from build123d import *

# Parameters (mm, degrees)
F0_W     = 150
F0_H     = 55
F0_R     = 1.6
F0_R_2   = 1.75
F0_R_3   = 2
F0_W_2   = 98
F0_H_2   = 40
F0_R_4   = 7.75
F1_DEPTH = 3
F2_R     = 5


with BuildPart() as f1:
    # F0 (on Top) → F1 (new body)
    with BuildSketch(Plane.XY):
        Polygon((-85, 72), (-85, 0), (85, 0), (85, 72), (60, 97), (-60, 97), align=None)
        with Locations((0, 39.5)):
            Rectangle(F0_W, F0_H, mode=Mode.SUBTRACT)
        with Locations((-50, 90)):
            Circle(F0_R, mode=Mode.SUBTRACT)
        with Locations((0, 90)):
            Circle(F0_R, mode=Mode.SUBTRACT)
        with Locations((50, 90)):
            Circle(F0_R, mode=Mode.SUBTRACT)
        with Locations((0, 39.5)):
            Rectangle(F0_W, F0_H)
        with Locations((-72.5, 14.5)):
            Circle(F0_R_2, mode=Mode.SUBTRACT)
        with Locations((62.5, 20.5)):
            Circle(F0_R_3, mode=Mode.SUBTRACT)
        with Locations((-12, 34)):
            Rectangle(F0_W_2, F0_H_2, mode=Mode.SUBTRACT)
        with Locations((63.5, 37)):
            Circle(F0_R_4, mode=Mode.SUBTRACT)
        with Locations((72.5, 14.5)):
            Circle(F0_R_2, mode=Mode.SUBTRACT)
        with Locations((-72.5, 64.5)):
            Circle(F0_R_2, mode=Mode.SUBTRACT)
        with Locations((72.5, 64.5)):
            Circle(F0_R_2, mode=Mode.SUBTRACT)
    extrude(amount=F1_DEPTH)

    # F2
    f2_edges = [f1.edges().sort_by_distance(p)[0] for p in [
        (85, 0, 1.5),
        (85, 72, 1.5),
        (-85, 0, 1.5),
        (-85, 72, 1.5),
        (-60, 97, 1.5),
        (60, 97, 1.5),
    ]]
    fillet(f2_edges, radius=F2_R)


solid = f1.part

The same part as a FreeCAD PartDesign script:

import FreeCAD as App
import Part
import Sketcher
Q = App.Units.Quantity


def edges_at(feature, points):
    """Names of the edges that pass closest to the given points."""
    edges = feature.Shape.Edges
    near = lambda p: min(range(len(edges)), key=lambda i: edges[i].distToShape(Part.Vertex(*p))[0])
    return sorted({f"Edge{near(p) + 1}" for p in points})


def add_polygon(sketch, points):
    """Adds a closed chain of lines whose ends are joined by coincident constraints."""
    first, n = sketch.GeometryCount, len(points)
    for a, b in zip(points, points[1:] + points[:1]):
        sketch.addGeometry(Part.LineSegment(App.Vector(*a, 0), App.Vector(*b, 0)), False)
    for i in range(n):
        sketch.addConstraint(Sketcher.Constraint("Coincident", first + i, 2, first + (i + 1) % n, 1))

doc = App.newDocument("Part")
body = doc.addObject("PartDesign::Body", "Body")

sketch1 = body.newObject("Sketcher::SketchObject", "Sketch")
sketch1.AttachmentSupport = (doc.getObject("XY_Plane"), [""])
sketch1.MapMode = "FlatFace"
add_polygon(sketch1, [(-85, 72), (-85, 0), (85, 0), (85, 72), (60, 97), (-60, 97)])
sketch1.addGeometry(Part.Circle(App.Vector(-72.5, 14.5, 0), App.Vector(0, 0, 1), 1.8), False)
add_polygon(sketch1, [(37, 14), (-61, 14), (-61, 54), (37, 54)])
sketch1.addGeometry(Part.Circle(App.Vector(72.5, 14.5, 0), App.Vector(0, 0, 1), 1.8), False)
sketch1.addGeometry(Part.Circle(App.Vector(62.5, 20.5, 0), App.Vector(0, 0, 1), 2), False)
sketch1.addGeometry(Part.Circle(App.Vector(63.5, 37, 0), App.Vector(0, 0, 1), 7.8), False)
sketch1.addGeometry(Part.Circle(App.Vector(-72.5, 64.5, 0), App.Vector(0, 0, 1), 1.8), False)
sketch1.addGeometry(Part.Circle(App.Vector(-50, 90, 0), App.Vector(0, 0, 1), 1.6), False)
sketch1.addGeometry(Part.Circle(App.Vector(72.5, 64.5, 0), App.Vector(0, 0, 1), 1.8), False)
sketch1.addGeometry(Part.Circle(App.Vector(0, 90, 0), App.Vector(0, 0, 1), 1.6), False)
sketch1.addGeometry(Part.Circle(App.Vector(50, 90, 0), App.Vector(0, 0, 1), 1.6), False)
sketch1.addConstraint([
    Sketcher.Constraint("Vertical", 0),
    Sketcher.Constraint("Horizontal", 1),
    Sketcher.Constraint("Vertical", 2),
    Sketcher.Constraint("Horizontal", 4),
    Sketcher.Constraint("Horizontal", 7),
    Sketcher.Constraint("Vertical", 8),
    Sketcher.Constraint("Horizontal", 9),
    Sketcher.Constraint("Vertical", 10),
    Sketcher.Constraint("Equal", 6, 11),
    Sketcher.Constraint("Equal", 11, 14),
    Sketcher.Constraint("Equal", 14, 16),
    Sketcher.Constraint("Equal", 15, 17),
    Sketcher.Constraint("Equal", 17, 18),
    Sketcher.Constraint("Symmetric", 0, 2, 1, 2, -1, 1),
    Sketcher.Constraint("Symmetric", 6, 3, 11, 3, -2),
    Sketcher.Constraint("Symmetric", 14, 3, 16, 3, -2),
    Sketcher.Constraint("Symmetric", 15, 3, 18, 3, -2),
    Sketcher.Constraint("PointOnObject", 17, 3, -2),
    Sketcher.Constraint("Perpendicular", 3, 5),
    Sketcher.Constraint("Horizontal", 15, 3, 17, 3),
    Sketcher.Constraint("Horizontal", 2, 2, 5, 2),
    Sketcher.Constraint("Vertical", 6, 3, 14, 3),
    Sketcher.Constraint("Equal", 3, 5),
    Sketcher.Constraint("Diameter", 12, Q("4 mm")),
    Sketcher.Constraint("Diameter", 6, Q("3.5 mm")),
    Sketcher.Constraint("Diameter", 13, Q("15.5 mm")),
    Sketcher.Constraint("Diameter", 15, Q("3.2 mm")),
    Sketcher.Constraint("DistanceX", 1, 1, 1, 2, Q("170 mm")),
    Sketcher.Constraint("DistanceX", 4, 2, 4, 1, Q("120 mm")),
    Sketcher.Constraint("DistanceX", 7, 2, 7, 1, Q("98 mm")),
    Sketcher.Constraint("DistanceY", 0, 2, 0, 1, Q("72 mm")),
    Sketcher.Constraint("DistanceY", 8, 1, 8, 2, Q("40 mm")),
    Sketcher.Constraint("DistanceY", -1, 1, 13, 3, Q("37 mm")),
    Sketcher.Constraint("DistanceX", 15, 3, -1, 1, Q("50 mm")),
    Sketcher.Constraint("DistanceY", -1, 1, 15, 3, Q("90 mm")),
    Sketcher.Constraint("DistanceX", 7, 2, -1, 1, Q("61 mm")),
    Sketcher.Constraint("DistanceY", -1, 1, 7, 2, Q("14 mm")),
    Sketcher.Constraint("DistanceX", 6, 3, 11, 3, Q("145 mm")),
    Sketcher.Constraint("DistanceX", 12, 3, 11, 3, Q("10 mm")),
    Sketcher.Constraint("DistanceY", 11, 3, 12, 3, Q("6 mm")),
    Sketcher.Constraint("DistanceX", 12, 3, 13, 3, Q("1 mm")),
    Sketcher.Constraint("DistanceY", 6, 3, 14, 3, Q("50 mm")),
    Sketcher.Constraint("DistanceY", -1, 1, 6, 3, Q("14.5 mm")),
])
pad1 = body.newObject("PartDesign::Pad", "Pad")
pad1.Profile = sketch1
pad1.Length = 3
doc.recompute()

fillet = body.newObject("PartDesign::Fillet", "Fillet")
fillet.Base = (pad1, edges_at(pad1, [
    (85, 0, 1.5),
    (85, 72, 1.5),
    (-85, 0, 1.5),
    (-85, 72, 1.5),
    (-60, 97, 1.5),
    (60, 97, 1.5),
]))
fillet.Radius = 5

doc.recompute()
